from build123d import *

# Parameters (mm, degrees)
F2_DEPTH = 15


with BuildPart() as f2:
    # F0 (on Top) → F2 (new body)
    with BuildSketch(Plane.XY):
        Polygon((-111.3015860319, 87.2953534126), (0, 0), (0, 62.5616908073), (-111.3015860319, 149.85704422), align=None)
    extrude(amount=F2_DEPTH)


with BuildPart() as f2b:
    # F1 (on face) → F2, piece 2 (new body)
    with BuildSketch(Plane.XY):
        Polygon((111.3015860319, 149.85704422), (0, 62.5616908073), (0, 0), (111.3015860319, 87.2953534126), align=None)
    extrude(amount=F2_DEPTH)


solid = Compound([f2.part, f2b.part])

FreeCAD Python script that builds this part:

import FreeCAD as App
import Part
import Sketcher
Q = App.Units.Quantity


def add_polygon(sketch, points):
    """Adds a closed chain of lines whose ends are joined by coincident constraints."""
    first, n = sketch.GeometryCount, len(points)
    for a, b in zip(points, points[1:] + points[:1]):
        sketch.addGeometry(Part.LineSegment(App.Vector(*a, 0), App.Vector(*b, 0)), False)
    for i in range(n):
        sketch.addConstraint(Sketcher.Constraint("Coincident", first + i, 2, first + (i + 1) % n, 1))

doc = App.newDocument("Part")
body = doc.addObject("PartDesign::Body", "Body")

sketch1 = doc.addObject("Sketcher::SketchObject", "Sketch")
body.addObject(sketch1)
sketch1.AttachmentSupport = (doc.XY_Plane, [""])
sketch1.MapMode = "FlatFace"
add_polygon(sketch1, [(-111, 87), (0, 0), (0, 63), (-111, 150)])
sketch1.addConstraint([
    Sketcher.Constraint("Vertical", 1),
    Sketcher.Constraint("Vertical", 3),
    Sketcher.Constraint("Coincident", 0, 2, -1, 1),
    Sketcher.Constraint("Parallel", 0, 2),
    Sketcher.Constraint("DistanceY", 1, 1, 1, 2, Q("62.561691 mm")),
    Sketcher.Constraint("Distance", 0, Q("141.451482 mm")),
    Sketcher.Constraint("DistanceX", 2, 2, -1, 1, Q("111.301586 mm")),
])
pad1 = doc.addObject("PartDesign::Pad", "Pad")
body.addObject(pad1)
pad1.Profile = sketch1
pad1.Length = 15
body2 = doc.addObject("PartDesign::Body", "Body001")

sketch2 = doc.addObject("Sketcher::SketchObject", "Sketch001")
body2.addObject(sketch2)
sketch2.AttachmentSupport = (doc.getObject("XY_Plane001"), [""])
sketch2.MapMode = "FlatFace"
add_polygon(sketch2, [(111, 150), (0, 63), (0, 0), (111, 87)])
sketch2.addConstraint([
    Sketcher.Constraint("Vertical", 1),
    Sketcher.Constraint("Vertical", 3),
    Sketcher.Constraint("Coincident", 1, 2, -1, 1),
    Sketcher.Constraint("Parallel", 0, 2),
    Sketcher.Constraint("DistanceY", 1, 2, 1, 1, Q("62.561691 mm")),
    Sketcher.Constraint("Distance", 0, Q("141.451482 mm")),
    Sketcher.Constraint("DistanceX", -1, 1, 2, 2, Q("111.301586 mm")),
])
pad2 = doc.addObject("PartDesign::Pad", "Pad001")
body2.addObject(pad2)
pad2.Profile = sketch2
pad2.Length = 15

doc.recompute()
